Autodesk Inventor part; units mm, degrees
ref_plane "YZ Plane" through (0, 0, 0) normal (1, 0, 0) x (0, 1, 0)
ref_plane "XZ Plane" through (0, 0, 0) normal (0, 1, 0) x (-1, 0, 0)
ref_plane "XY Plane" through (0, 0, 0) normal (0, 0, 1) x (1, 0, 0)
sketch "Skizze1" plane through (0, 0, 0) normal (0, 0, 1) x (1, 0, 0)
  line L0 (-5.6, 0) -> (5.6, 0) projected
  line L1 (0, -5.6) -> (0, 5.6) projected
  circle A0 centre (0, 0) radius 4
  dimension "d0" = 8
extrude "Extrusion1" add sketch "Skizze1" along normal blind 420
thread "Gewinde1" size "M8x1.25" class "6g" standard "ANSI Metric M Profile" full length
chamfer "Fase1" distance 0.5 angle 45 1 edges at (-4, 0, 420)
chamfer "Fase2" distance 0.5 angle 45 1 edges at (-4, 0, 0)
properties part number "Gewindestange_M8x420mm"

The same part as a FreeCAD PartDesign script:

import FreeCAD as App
import Part
import Sketcher

V = App.Vector
Q = App.Units.Quantity


def edges_at(feature, points):
    """Names of the edges that pass closest to the given points."""
    edges = feature.Shape.Edges
    near = lambda p: min(range(len(edges)), key=lambda i: edges[i].distToShape(Part.Vertex(*p))[0])
    return sorted({f"Edge{near(p) + 1}" for p in points})

doc = App.newDocument("Part")
params = doc.addObject("Spreadsheet::Sheet", "Params")
for row, (alias, value) in enumerate([
    ("sketch1_diameter", "8 mm"),
    ("pad1_length", "420 mm"),
    ("chamfer_size", "0.5 mm"),
    ("chamfer2_size", "0.5 mm"),
], start=1):
    params.set(f"A{row}", alias)
    params.set(f"B{row}", "=" + value)
    params.setAlias(f"B{row}", alias)

body = doc.addObject("PartDesign::Body", "Body")

sketch1 = body.newObject("Sketcher::SketchObject", "Sketch")
sketch1.AttachmentSupport = (doc.getObject("XY_Plane"), [""])
sketch1.MapMode = "FlatFace"
sketch1.addGeometry(Part.Circle(V(0, 0, 0), V(0, 0, 1), 4), False)
sketch1.addConstraint(Sketcher.Constraint("Coincident", 0, 3, -1, 1))
sketch1.addConstraint(Sketcher.Constraint("Diameter", 0, Q("8 mm")))
sketch1.setExpression("Constraints[1]", "Params.sketch1_diameter")
pad1 = body.newObject("PartDesign::Pad", "Pad")
pad1.Profile = sketch1
pad1.setExpression("Length", "Params.pad1_length")
doc.recompute()

chamfer = body.newObject("PartDesign::Chamfer", "Chamfer")
chamfer.Base = (pad1, edges_at(pad1, [(-4, 0, 420)]))
chamfer.setExpression("Size", "Params.chamfer_size")
doc.recompute()

chamfer2 = body.newObject("PartDesign::Chamfer", "Chamfer001")
chamfer2.Base = (chamfer, edges_at(chamfer, [(-4, 0, 0)]))
chamfer2.setExpression("Size", "Params.chamfer2_size")

doc.recompute()
